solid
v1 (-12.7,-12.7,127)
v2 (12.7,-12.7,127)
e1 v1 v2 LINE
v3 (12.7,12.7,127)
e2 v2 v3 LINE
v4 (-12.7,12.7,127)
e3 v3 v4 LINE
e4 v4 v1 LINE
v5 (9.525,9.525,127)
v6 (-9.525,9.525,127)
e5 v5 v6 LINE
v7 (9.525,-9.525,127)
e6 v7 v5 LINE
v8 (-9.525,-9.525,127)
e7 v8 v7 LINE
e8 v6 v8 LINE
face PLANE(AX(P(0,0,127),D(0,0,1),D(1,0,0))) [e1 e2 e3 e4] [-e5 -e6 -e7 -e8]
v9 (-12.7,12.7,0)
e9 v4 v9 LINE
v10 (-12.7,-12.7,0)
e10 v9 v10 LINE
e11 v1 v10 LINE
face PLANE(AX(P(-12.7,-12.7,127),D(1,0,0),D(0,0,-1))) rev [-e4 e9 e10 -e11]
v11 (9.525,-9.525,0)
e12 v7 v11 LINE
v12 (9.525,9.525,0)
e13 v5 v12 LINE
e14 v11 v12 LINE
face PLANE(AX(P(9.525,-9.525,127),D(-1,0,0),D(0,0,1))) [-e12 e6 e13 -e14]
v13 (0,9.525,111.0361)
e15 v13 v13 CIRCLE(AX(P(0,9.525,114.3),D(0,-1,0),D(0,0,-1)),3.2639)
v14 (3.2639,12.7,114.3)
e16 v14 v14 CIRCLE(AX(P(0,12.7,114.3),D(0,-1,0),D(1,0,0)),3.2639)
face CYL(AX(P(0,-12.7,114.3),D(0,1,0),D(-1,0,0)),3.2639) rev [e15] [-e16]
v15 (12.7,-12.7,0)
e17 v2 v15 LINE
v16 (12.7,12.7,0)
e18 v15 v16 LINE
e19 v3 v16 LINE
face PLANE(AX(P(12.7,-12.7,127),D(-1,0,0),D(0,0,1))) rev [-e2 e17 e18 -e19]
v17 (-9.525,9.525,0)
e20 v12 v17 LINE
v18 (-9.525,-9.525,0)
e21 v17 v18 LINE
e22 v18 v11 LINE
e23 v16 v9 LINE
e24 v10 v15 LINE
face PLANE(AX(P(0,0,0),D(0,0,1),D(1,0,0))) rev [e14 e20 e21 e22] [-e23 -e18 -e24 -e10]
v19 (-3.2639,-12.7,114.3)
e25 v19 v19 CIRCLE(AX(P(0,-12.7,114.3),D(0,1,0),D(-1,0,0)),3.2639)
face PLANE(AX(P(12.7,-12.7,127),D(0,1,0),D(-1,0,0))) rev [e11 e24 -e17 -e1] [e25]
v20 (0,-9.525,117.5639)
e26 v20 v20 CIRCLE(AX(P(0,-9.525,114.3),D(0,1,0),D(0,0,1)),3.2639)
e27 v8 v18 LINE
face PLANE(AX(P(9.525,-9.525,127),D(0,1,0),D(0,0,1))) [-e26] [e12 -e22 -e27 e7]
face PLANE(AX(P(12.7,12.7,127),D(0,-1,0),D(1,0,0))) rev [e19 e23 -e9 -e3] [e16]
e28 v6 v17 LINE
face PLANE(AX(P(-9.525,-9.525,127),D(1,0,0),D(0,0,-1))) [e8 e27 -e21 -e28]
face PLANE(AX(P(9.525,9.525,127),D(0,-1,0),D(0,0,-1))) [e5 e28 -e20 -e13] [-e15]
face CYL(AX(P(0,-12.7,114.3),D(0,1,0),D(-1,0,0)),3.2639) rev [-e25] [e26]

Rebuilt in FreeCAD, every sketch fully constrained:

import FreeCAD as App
import Part
import Sketcher

V = App.Vector
Q = App.Units.Quantity


def add_polygon(sketch, points):
    """Adds a closed chain of lines whose ends are joined by coincident constraints."""
    first, n = sketch.GeometryCount, len(points)
    for a, b in zip(points, points[1:] + points[:1]):
        sketch.addGeometry(Part.LineSegment(App.Vector(*a, 0), App.Vector(*b, 0)), False)
    for i in range(n):
        sketch.addConstraint(Sketcher.Constraint("Coincident", first + i, 2, first + (i + 1) % n, 1))

doc = App.newDocument("Part")
params = doc.addObject("Spreadsheet::Sheet", "Params")
for row, (alias, value) in enumerate([
    ("sketch1_width", "1 in"),
    ("pad1_length", "5 in"),
    ("sketch2_width", "0.75 in"),
    ("sketch3_diameter", "0.257 in"),
], start=1):
    params.set(f"A{row}", alias)
    params.set(f"B{row}", "=" + value)
    params.setAlias(f"B{row}", alias)

body = doc.addObject("PartDesign::Body", "Body")

sketch1 = body.newObject("Sketcher::SketchObject", "Sketch")
sketch1.AttachmentSupport = (doc.getObject("XY_Plane"), [""])
sketch1.MapMode = "FlatFace"
add_polygon(sketch1, [(-12.7, 12.7), (-12.7, -12.7), (12.7, -12.7), (12.7, 12.7)])
sketch1.addConstraint(Sketcher.Constraint("Vertical", 0))
sketch1.addConstraint(Sketcher.Constraint("Horizontal", 1))
sketch1.addConstraint(Sketcher.Constraint("Vertical", 2))
sketch1.addConstraint(Sketcher.Constraint("Horizontal", 3))
sketch1.addConstraint(Sketcher.Constraint("Symmetric", 0, 2, 2, 2, -1, 1))
sketch1.addConstraint(Sketcher.Constraint("Equal", 3, 0))
sketch1.addConstraint(Sketcher.Constraint("DistanceX", 1, 1, 1, 2, Q("1 in")))
sketch1.setExpression("Constraints[10]", "Params.sketch1_width")
pad1 = body.newObject("PartDesign::Pad", "Pad")
pad1.Profile = sketch1
pad1.setExpression("Length", "Params.pad1_length")

sketch2 = body.newObject("Sketcher::SketchObject", "Sketch001")
sketch2.AttachmentSupport = (doc.getObject("XY_Plane"), [""])
sketch2.MapMode = "FlatFace"
add_polygon(sketch2, [(-9.525, 9.525), (-9.525, -9.525), (9.525, -9.525), (9.525, 9.525)])
sketch2.addConstraint(Sketcher.Constraint("Vertical", 0))
sketch2.addConstraint(Sketcher.Constraint("Horizontal", 1))
sketch2.addConstraint(Sketcher.Constraint("Vertical", 2))
sketch2.addConstraint(Sketcher.Constraint("Horizontal", 3))
sketch2.addConstraint(Sketcher.Constraint("Symmetric", 0, 2, 2, 2, -1, 1))
sketch2.addConstraint(Sketcher.Constraint("Equal", 3, 0))
sketch2.addConstraint(Sketcher.Constraint("DistanceX", 1, 1, 1, 2, Q("0.75 in")))
sketch2.setExpression("Constraints[10]", "Params.sketch2_width")
pocket1 = body.newObject("PartDesign::Pocket", "Pocket")
pocket1.Profile = sketch2
pocket1.Type = "ThroughAll"
pocket1.Reversed = True

sketch3 = body.newObject("Sketcher::SketchObject", "Sketch002")
sketch3.AttachmentSupport = (doc.getObject("XZ_Plane"), [""])
sketch3.MapMode = "FlatFace"
sketch3.AttachmentOffset = App.Placement(V(0, 0, -0.5 * 25.4), App.Rotation())
sketch3.addGeometry(Part.Circle(V(0, 114.3, 0), V(0, 0, 1), 3.2639), False)
sketch3.addConstraint(Sketcher.Constraint("PointOnObject", 0, 3, -2))
sketch3.addConstraint(Sketcher.Constraint("Diameter", 0, Q("0.257 in")))
sketch3.addConstraint(Sketcher.Constraint("DistanceY", -1, 1, 0, 3, Q("4.5 in")))
sketch3.setExpression("Constraints[1]", "Params.sketch3_diameter")
pocket2 = body.newObject("PartDesign::Pocket", "Pocket001")
pocket2.Profile = sketch3
pocket2.Type = "ThroughAll"
pocket2.Midplane = True

doc.recompute()
